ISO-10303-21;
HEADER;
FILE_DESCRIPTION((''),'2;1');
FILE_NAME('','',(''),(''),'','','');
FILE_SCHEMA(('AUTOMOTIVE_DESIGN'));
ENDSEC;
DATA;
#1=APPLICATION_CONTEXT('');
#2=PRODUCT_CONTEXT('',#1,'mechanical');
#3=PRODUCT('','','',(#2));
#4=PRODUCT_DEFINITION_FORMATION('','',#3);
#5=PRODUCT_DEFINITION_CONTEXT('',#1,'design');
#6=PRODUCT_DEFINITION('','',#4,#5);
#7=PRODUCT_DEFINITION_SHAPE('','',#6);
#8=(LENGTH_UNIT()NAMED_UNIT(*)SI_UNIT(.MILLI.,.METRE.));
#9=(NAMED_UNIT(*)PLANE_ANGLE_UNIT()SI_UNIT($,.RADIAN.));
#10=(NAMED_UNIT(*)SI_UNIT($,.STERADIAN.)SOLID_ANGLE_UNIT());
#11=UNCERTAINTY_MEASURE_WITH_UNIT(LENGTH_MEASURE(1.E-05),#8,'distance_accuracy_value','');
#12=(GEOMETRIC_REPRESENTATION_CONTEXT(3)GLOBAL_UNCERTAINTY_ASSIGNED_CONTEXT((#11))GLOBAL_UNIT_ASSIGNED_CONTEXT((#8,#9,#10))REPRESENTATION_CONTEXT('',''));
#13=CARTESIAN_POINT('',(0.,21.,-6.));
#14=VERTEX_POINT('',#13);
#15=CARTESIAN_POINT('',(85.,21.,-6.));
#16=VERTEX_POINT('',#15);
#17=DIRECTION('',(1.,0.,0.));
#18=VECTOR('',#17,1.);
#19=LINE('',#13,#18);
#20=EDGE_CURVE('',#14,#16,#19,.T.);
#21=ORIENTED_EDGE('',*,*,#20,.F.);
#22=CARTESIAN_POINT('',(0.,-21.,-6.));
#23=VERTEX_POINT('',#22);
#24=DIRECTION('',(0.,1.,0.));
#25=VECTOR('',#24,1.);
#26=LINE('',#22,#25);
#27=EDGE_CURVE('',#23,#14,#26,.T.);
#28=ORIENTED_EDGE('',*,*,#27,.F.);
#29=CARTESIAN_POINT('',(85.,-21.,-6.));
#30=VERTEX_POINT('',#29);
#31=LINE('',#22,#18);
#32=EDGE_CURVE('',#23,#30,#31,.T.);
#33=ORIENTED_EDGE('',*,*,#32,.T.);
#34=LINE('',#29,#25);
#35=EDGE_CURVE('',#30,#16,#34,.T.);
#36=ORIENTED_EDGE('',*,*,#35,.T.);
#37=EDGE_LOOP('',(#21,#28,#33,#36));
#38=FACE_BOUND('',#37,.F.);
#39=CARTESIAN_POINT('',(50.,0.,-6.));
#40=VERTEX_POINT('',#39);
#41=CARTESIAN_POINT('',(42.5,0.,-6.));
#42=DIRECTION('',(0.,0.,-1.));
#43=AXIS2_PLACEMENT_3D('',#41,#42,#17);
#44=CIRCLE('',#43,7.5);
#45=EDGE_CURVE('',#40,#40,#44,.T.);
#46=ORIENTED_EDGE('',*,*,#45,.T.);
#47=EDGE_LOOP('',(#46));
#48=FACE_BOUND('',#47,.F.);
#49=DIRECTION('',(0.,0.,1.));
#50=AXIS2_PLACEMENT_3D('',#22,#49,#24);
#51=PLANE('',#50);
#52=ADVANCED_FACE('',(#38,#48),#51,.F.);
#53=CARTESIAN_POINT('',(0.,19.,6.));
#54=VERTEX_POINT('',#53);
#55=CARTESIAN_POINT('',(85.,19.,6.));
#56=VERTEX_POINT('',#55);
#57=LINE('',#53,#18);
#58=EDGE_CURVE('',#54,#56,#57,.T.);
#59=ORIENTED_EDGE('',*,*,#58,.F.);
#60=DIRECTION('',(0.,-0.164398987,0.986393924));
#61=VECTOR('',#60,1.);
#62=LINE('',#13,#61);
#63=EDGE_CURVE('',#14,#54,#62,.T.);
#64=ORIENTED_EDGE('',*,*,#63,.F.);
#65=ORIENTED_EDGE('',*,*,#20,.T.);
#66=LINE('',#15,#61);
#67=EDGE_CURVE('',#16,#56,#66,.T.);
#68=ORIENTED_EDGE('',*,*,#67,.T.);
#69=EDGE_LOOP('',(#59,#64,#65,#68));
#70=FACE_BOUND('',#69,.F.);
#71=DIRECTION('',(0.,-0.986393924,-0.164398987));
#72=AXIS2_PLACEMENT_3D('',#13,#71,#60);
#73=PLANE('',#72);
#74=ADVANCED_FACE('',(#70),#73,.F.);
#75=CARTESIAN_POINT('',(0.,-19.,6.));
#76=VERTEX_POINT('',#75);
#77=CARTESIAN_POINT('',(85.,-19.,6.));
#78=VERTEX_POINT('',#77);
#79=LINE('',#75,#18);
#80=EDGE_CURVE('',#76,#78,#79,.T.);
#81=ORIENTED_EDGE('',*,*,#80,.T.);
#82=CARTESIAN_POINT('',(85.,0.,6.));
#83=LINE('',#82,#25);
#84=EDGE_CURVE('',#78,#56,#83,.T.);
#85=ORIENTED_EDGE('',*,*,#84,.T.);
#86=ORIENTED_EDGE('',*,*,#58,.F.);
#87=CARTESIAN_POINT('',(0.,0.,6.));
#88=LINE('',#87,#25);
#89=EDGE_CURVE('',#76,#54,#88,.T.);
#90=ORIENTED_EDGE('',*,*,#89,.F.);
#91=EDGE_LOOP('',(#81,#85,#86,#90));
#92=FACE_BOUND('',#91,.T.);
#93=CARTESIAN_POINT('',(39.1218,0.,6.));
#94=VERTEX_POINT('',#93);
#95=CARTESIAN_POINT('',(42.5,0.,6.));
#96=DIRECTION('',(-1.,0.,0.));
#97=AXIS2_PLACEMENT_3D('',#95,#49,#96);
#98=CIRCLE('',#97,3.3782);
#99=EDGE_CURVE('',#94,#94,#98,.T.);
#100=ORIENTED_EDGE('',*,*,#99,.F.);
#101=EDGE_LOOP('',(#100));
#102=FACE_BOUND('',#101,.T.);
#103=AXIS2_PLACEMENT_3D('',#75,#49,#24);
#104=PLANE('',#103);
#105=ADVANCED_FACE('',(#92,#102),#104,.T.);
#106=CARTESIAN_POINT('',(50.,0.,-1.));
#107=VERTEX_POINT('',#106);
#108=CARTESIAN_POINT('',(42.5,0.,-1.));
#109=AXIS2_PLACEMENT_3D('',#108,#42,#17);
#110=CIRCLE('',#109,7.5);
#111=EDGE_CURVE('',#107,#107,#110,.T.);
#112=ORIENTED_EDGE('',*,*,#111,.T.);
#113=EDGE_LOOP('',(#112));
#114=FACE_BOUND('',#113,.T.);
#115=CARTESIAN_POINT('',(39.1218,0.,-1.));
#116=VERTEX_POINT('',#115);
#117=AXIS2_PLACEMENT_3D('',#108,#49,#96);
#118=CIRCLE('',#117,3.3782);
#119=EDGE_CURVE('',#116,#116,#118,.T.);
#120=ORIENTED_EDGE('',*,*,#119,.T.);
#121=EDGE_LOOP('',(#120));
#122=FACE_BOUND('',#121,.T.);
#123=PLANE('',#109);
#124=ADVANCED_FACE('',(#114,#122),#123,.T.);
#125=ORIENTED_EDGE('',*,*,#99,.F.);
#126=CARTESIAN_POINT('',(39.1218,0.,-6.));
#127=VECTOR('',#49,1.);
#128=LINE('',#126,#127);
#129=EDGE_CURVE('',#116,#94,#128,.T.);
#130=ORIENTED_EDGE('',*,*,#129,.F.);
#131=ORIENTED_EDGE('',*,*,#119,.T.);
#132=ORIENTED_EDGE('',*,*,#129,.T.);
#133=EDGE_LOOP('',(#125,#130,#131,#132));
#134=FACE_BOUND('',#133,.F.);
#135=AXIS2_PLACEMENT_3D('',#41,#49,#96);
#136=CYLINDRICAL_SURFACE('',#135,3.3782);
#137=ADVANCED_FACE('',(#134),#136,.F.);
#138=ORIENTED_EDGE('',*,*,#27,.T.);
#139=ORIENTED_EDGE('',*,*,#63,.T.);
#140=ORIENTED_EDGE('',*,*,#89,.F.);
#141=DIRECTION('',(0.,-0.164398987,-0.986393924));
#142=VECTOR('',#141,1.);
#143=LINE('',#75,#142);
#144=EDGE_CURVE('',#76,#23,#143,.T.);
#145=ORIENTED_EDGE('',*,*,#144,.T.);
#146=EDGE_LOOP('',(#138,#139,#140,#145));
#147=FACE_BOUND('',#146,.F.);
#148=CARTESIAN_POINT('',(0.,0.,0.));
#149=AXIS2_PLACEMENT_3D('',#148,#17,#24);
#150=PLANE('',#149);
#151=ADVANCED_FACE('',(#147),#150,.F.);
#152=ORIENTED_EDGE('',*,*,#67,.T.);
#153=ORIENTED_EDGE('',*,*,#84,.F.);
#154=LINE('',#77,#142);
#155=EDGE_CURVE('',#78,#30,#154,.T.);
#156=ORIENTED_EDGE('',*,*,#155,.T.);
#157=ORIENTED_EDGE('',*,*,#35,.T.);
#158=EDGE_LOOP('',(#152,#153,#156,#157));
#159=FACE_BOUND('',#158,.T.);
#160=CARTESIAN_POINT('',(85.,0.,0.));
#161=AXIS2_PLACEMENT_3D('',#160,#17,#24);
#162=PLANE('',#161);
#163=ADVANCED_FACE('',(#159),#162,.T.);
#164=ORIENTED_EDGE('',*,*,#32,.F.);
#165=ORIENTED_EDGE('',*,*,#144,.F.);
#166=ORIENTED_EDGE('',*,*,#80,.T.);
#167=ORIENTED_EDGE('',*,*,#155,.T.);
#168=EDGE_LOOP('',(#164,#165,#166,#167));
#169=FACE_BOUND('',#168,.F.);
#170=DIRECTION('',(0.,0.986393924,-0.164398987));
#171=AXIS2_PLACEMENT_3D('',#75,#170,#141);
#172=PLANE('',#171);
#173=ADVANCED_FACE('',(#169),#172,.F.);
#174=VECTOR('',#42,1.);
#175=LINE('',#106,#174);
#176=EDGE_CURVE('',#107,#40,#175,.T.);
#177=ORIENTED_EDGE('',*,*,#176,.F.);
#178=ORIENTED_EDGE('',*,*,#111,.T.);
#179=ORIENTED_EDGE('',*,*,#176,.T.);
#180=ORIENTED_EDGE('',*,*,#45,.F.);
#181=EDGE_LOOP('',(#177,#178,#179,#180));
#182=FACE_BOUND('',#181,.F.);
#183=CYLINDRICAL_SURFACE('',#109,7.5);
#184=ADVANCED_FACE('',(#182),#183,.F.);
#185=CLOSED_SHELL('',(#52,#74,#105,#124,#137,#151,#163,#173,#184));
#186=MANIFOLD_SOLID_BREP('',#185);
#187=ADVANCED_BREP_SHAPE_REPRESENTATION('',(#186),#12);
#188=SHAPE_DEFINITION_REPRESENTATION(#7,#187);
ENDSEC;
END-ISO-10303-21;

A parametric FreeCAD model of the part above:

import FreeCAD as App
import Part
import Sketcher

V = App.Vector


def add_polygon(sketch, points):
    """Adds a closed chain of lines whose ends are joined by coincident constraints."""
    first, n = sketch.GeometryCount, len(points)
    for a, b in zip(points, points[1:] + points[:1]):
        sketch.addGeometry(Part.LineSegment(App.Vector(*a, 0), App.Vector(*b, 0)), False)
    for i in range(n):
        sketch.addConstraint(Sketcher.Constraint("Coincident", first + i, 2, first + (i + 1) % n, 1))

doc = App.newDocument("Part")
params = doc.addObject("Spreadsheet::Sheet", "Params")
for row, (alias, value) in enumerate([
    ("sketch1_width", "38 mm"),
    ("sketch1_width2", "42 mm"),
    ("pad1_length", "85 mm"),
    ("hole_diameter", "6.7564 mm"),
    ("hole_cbore_diameter", "15 mm"),
    ("hole_cbore_depth", "5 mm"),
], start=1):
    params.set(f"A{row}", alias)
    params.set(f"B{row}", "=" + value)
    params.setAlias(f"B{row}", alias)

body = doc.addObject("PartDesign::Body", "Body")

# Sketch on YZ plane
sketch1 = body.newObject("Sketcher::SketchObject", "Sketch")
sketch1.AttachmentSupport = (doc.getObject("YZ_Plane"), [""])
sketch1.MapMode = "FlatFace"
add_polygon(sketch1, [(21, -6), (19, 6), (-19, 6), (-21, -6)])  # lines 0-3
sketch1.addConstraint(Sketcher.Constraint("Horizontal", 1))
sketch1.addConstraint(Sketcher.Constraint("Horizontal", 3))
sketch1.addConstraint(Sketcher.Constraint("Equal", 0, 2))
sketch1.addConstraint(Sketcher.Constraint("DistanceX", 1, 2, 1, 1, 38.0))
sketch1.addConstraint(Sketcher.Constraint("DistanceX", 3, 1, 3, 2, 42.0))
sketch1.addConstraint(Sketcher.Constraint("DistanceX", -1, 1, 0, 2, 19.0))
sketch1.addConstraint(Sketcher.Constraint("DistanceY", -1, 1, 0, 2, 6.0))
sketch1.addConstraint(Sketcher.Constraint("DistanceY", 2, 2, -1, 1, 6.0))
sketch1.setExpression("Constraints[7]", "Params.sketch1_width")
sketch1.setExpression("Constraints[8]", "Params.sketch1_width2")
pad1 = body.newObject("PartDesign::Pad", "Pad")
pad1.Profile = sketch1
pad1.setExpression("Length", "Params.pad1_length")

# Sketch on XY plane
sketch2 = body.newObject("Sketcher::SketchObject", "Sketch001")
sketch2.AttachmentSupport = (doc.getObject("XY_Plane"), [""])
sketch2.MapMode = "FlatFace"
sketch2.AttachmentOffset = App.Placement(V(0, 0, -6), App.Rotation())
sketch2.addGeometry(Part.Circle(V(42.5, 0, 0), V(0, 0, 1), 3.4), False)
sketch2.addConstraint(Sketcher.Constraint("PointOnObject", 0, 3, -1))
sketch2.addConstraint(Sketcher.Constraint("Diameter", 0, 6.7564))
sketch2.addConstraint(Sketcher.Constraint("DistanceX", -1, 1, 0, 3, 42.5))
doc.recompute()
hole = body.newObject("PartDesign::Hole", "Hole")
hole.Profile = sketch2
hole.ThreadType = "None"
hole.setExpression("Diameter", "Params.hole_diameter")
hole.DepthType = "ThroughAll"
hole.HoleCutType = "Counterbore"
hole.setExpression("HoleCutDiameter", "Params.hole_cbore_diameter")
hole.setExpression("HoleCutDepth", "Params.hole_cbore_depth")
hole.Reversed = True

doc.recompute()
